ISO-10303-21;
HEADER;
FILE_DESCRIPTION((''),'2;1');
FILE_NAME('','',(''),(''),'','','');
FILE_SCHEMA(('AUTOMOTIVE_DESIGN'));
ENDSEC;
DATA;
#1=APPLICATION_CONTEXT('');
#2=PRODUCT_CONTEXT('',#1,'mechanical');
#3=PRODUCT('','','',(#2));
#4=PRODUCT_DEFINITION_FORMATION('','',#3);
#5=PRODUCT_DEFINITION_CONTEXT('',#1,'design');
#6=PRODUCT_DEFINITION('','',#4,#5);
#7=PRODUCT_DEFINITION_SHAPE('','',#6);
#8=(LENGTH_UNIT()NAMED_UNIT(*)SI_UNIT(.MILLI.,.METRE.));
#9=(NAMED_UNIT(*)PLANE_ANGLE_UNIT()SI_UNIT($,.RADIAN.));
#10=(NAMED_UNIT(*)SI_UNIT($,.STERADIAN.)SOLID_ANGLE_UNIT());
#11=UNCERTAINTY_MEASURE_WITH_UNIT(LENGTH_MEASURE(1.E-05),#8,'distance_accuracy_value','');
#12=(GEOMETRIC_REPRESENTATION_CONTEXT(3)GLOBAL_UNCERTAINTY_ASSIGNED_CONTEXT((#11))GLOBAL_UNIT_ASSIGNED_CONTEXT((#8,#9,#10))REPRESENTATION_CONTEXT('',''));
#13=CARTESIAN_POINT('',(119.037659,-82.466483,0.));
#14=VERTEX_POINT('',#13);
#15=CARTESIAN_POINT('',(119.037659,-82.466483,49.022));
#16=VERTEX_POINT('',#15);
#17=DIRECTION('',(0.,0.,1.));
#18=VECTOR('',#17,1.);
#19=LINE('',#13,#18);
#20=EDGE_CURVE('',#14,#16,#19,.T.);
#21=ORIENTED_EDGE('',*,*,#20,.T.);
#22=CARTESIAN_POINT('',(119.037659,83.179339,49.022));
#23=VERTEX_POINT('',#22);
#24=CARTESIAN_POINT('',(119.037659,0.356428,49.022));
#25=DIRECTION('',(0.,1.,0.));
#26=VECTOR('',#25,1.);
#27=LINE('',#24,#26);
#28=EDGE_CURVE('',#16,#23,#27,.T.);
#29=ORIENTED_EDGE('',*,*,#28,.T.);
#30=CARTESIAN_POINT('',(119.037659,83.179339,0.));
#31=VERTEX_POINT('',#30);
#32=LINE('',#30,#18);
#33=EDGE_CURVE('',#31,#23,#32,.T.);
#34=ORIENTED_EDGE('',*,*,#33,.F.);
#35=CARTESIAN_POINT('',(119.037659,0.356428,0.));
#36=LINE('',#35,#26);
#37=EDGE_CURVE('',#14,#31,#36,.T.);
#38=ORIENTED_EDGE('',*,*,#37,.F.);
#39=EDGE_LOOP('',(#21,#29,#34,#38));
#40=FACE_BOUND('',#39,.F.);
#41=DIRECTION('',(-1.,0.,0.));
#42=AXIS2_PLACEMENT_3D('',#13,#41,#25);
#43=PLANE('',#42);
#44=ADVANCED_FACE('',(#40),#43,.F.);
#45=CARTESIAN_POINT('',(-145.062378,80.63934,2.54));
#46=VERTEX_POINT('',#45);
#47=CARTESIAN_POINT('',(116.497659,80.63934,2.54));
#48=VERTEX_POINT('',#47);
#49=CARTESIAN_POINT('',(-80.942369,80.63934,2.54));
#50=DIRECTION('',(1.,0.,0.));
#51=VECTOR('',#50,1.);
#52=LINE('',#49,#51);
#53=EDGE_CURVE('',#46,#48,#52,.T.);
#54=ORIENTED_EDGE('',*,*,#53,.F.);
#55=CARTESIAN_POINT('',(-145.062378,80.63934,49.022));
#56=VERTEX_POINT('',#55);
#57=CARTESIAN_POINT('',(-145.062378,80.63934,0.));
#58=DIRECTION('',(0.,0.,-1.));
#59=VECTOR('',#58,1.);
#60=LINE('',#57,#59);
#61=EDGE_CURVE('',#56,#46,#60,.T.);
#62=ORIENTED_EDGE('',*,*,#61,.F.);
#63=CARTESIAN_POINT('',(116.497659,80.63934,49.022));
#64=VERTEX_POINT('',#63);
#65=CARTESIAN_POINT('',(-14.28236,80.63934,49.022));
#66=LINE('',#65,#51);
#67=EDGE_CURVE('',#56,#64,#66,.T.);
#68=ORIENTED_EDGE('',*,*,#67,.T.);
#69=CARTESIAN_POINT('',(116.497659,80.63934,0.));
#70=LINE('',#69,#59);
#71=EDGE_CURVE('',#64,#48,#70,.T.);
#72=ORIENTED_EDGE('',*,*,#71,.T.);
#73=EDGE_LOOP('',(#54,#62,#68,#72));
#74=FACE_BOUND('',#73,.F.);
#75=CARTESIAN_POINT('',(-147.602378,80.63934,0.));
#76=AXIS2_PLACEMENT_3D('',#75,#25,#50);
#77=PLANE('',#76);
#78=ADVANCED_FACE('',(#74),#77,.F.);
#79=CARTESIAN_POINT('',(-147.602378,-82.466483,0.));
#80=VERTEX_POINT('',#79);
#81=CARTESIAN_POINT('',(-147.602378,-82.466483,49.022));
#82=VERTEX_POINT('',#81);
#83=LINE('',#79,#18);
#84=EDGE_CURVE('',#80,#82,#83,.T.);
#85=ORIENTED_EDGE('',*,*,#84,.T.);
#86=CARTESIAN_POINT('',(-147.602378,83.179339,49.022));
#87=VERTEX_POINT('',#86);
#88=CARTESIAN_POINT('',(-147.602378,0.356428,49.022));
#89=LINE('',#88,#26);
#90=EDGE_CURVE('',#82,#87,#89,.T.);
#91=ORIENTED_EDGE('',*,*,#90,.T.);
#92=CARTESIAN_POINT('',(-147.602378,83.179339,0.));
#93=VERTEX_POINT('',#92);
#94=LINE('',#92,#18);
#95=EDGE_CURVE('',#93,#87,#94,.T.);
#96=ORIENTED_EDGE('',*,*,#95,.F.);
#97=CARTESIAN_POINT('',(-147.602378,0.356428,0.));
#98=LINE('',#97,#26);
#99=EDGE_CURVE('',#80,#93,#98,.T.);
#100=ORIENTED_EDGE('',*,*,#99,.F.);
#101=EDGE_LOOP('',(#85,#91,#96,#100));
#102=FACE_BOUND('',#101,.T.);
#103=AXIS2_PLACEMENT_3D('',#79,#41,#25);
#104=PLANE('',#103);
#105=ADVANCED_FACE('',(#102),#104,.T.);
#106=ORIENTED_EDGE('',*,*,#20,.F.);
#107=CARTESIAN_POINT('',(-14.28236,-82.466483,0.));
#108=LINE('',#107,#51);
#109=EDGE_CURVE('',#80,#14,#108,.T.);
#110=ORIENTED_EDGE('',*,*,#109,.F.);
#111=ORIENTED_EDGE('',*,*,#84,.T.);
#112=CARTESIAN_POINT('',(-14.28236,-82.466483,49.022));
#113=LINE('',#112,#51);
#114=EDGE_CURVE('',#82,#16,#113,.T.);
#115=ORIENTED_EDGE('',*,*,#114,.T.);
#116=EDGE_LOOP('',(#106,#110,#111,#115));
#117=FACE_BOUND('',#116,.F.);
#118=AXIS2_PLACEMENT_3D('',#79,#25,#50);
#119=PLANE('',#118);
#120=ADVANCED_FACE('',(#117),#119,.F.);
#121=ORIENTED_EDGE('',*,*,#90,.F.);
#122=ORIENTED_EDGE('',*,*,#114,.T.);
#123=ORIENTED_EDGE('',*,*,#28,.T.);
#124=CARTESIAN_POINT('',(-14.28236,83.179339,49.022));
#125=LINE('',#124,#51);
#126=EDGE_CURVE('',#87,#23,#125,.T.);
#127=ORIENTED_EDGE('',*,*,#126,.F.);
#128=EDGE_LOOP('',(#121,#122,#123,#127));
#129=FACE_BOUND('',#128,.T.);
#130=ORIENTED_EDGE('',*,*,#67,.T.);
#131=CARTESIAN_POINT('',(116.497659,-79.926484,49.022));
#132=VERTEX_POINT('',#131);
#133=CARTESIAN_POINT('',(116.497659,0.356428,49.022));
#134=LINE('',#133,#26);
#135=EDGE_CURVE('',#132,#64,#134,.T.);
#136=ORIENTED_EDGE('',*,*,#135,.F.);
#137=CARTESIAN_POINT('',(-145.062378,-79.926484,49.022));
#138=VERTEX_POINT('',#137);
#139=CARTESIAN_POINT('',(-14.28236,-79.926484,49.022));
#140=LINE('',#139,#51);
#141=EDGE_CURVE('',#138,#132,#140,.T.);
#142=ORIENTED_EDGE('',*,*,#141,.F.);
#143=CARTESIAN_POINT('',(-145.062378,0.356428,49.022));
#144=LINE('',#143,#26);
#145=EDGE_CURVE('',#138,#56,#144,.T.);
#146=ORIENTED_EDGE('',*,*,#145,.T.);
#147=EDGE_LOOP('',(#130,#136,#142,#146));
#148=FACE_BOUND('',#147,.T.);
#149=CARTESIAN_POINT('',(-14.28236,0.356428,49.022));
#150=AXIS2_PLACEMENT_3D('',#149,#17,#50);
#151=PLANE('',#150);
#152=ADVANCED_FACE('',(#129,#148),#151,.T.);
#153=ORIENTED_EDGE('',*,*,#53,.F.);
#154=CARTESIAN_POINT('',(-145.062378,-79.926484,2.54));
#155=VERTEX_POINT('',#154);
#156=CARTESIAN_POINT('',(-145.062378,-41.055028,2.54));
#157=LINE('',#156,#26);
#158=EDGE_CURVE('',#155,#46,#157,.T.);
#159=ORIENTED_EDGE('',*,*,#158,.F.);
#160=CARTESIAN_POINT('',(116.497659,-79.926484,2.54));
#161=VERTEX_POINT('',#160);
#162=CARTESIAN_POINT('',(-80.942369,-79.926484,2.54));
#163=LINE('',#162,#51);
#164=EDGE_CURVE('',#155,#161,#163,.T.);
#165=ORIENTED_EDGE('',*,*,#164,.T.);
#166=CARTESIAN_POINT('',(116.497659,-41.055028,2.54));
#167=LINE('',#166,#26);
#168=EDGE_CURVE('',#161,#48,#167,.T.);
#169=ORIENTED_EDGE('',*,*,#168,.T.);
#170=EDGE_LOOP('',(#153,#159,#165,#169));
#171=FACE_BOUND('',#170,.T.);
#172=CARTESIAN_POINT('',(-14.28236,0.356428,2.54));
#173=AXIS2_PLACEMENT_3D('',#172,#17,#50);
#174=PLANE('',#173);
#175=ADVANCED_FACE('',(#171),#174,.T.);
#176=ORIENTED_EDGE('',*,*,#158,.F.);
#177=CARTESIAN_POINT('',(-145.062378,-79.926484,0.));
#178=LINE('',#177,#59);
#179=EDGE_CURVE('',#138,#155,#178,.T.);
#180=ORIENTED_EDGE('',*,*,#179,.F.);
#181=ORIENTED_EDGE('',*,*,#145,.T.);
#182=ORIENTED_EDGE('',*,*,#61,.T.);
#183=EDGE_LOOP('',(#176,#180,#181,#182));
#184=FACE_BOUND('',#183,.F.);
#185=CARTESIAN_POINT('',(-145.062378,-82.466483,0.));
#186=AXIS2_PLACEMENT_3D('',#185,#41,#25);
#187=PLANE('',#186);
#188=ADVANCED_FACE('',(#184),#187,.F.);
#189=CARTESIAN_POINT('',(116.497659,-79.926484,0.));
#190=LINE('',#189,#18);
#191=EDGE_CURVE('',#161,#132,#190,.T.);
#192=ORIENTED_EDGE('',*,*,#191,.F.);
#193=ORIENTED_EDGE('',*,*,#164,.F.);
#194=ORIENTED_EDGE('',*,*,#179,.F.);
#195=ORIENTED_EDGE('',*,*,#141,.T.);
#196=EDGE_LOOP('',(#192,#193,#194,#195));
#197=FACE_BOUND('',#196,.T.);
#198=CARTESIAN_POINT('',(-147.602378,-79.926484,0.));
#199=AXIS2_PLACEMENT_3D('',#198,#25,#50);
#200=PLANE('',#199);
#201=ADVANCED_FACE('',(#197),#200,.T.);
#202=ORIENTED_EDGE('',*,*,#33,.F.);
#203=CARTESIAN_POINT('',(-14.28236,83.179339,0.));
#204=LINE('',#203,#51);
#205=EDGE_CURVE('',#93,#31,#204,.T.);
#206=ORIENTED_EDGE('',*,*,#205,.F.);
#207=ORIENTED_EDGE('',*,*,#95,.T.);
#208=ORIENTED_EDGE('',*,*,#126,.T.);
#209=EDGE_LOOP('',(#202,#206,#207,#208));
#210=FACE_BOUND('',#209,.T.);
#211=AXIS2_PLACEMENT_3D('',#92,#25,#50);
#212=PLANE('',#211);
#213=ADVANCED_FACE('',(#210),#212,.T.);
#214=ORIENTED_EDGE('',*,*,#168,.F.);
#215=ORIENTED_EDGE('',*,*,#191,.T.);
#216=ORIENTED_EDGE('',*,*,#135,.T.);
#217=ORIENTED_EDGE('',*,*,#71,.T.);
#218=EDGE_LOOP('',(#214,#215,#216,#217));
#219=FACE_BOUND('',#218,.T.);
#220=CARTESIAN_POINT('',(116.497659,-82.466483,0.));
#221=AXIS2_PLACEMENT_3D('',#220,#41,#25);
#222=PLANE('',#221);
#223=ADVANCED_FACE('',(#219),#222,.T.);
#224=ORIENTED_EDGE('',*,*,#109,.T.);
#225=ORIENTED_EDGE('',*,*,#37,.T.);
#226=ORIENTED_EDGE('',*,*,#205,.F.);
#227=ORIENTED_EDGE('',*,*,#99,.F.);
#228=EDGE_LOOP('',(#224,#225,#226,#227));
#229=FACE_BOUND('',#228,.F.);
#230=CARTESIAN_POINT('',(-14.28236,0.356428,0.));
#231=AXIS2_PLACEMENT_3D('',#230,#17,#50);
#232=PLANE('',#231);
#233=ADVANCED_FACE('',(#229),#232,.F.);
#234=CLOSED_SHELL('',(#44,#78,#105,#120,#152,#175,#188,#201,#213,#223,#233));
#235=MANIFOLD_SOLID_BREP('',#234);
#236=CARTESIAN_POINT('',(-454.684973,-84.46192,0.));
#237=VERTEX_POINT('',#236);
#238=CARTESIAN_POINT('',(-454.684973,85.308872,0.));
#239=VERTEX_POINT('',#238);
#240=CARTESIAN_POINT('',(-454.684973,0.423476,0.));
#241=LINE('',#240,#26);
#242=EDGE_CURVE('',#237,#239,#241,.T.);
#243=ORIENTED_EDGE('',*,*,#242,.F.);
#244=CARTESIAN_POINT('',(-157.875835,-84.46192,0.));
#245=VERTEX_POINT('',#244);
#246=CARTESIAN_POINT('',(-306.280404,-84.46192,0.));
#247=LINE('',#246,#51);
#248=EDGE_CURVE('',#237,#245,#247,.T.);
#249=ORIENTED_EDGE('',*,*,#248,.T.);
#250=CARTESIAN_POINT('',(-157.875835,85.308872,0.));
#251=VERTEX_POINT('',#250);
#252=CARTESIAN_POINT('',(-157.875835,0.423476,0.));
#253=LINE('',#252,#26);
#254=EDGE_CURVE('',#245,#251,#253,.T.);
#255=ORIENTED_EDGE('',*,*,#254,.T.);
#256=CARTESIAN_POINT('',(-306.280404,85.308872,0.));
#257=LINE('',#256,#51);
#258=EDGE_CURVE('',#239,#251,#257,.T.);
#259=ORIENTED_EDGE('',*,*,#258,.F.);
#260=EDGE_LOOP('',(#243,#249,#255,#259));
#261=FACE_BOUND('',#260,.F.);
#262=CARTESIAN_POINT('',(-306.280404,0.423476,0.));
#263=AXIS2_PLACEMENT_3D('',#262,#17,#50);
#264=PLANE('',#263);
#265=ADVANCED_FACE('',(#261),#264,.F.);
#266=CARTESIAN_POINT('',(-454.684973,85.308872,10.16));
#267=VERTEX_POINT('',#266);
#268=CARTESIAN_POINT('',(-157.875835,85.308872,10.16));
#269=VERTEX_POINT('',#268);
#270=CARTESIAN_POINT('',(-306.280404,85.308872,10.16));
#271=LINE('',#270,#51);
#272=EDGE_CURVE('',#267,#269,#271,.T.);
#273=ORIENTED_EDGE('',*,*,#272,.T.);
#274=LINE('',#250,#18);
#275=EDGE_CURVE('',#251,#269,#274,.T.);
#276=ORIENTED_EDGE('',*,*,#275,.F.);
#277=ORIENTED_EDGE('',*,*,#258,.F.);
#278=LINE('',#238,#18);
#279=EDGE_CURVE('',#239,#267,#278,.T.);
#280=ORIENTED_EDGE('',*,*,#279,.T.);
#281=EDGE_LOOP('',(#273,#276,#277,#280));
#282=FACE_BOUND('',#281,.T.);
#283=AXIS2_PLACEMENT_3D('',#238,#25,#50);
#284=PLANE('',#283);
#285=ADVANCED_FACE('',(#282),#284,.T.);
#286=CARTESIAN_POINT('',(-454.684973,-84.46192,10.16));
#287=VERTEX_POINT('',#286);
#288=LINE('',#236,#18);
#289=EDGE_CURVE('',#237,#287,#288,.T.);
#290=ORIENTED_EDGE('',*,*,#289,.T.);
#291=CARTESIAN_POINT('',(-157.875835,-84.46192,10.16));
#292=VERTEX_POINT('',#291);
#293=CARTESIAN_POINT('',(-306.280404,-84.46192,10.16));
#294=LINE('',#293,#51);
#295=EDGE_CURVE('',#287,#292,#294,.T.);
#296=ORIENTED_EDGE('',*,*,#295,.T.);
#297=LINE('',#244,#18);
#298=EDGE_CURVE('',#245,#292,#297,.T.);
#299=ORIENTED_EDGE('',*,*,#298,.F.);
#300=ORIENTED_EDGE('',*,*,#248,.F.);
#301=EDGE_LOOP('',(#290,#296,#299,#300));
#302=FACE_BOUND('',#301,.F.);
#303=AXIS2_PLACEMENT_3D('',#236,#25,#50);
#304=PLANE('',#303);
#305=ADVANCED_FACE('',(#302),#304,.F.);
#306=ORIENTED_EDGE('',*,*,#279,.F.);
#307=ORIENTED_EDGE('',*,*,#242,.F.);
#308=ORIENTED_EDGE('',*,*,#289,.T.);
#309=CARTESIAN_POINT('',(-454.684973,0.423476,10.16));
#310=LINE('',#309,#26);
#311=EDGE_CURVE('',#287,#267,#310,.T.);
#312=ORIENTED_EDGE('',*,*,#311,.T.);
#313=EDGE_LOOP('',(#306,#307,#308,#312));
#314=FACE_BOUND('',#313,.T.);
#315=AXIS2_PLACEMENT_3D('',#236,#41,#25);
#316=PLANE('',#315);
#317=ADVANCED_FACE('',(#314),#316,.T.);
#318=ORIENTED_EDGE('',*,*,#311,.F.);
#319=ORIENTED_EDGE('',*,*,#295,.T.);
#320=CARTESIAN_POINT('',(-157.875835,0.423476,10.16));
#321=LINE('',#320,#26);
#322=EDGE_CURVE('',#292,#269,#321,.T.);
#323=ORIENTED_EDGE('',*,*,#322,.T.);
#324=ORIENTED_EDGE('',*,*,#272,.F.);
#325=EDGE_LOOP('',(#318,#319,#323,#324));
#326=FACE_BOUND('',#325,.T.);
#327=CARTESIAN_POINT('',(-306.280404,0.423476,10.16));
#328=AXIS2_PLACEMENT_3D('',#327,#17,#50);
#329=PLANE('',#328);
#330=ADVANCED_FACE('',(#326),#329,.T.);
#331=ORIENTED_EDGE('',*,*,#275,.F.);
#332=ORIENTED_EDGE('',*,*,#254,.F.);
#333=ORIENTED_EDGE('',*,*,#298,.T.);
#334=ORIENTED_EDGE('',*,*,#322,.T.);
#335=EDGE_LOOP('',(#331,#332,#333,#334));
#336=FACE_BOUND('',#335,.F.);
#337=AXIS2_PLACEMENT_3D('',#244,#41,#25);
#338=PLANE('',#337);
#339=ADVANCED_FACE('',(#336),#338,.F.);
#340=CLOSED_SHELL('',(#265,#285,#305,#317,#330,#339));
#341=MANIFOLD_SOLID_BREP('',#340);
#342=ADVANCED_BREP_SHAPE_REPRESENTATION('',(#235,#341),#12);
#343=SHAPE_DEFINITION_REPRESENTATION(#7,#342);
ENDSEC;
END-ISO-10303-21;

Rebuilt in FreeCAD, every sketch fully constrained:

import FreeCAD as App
import Part
import Sketcher
from FreeCAD import Vector
Q = App.Units.Quantity


def faces_at(feature, points):
    """Names of the faces that lie closest to the given points."""
    faces = feature.Shape.Faces
    near = lambda p: min(range(len(faces)), key=lambda i: faces[i].distToShape(Part.Vertex(*p))[0])
    return sorted({f"Face{near(p) + 1}" for p in points})

doc = App.newDocument("Part")
body = doc.addObject("PartDesign::Body", "Body")

# Sketch on XY plane
sketch1 = doc.addObject("Sketcher::SketchObject", "Sketch")
body.addObject(sketch1)
sketch1.AttachmentSupport = (doc.XY_Plane, [""])
sketch1.MapMode = "FlatFace"
sketch1.addGeometry(Part.LineSegment(Vector(-148, 83, 0), Vector(-148, -82, 0)), False)
sketch1.addGeometry(Part.LineSegment(Vector(-148, -82, 0), Vector(119, -82, 0)), False)
sketch1.addGeometry(Part.LineSegment(Vector(119, -82, 0), Vector(119, 83, 0)), False)
sketch1.addGeometry(Part.LineSegment(Vector(119, 83, 0), Vector(-148, 83, 0)), False)
sketch1.addConstraint(Sketcher.Constraint("Coincident", 0, 2, 1, 1))
sketch1.addConstraint(Sketcher.Constraint("Coincident", 1, 2, 2, 1))
sketch1.addConstraint(Sketcher.Constraint("Coincident", 2, 2, 3, 1))
sketch1.addConstraint(Sketcher.Constraint("Coincident", 3, 2, 0, 1))
sketch1.addConstraint(Sketcher.Constraint("Vertical", 0))
sketch1.addConstraint(Sketcher.Constraint("Horizontal", 1))
sketch1.addConstraint(Sketcher.Constraint("Vertical", 2))
sketch1.addConstraint(Sketcher.Constraint("Horizontal", 3))
sketch1.addConstraint(Sketcher.Constraint("DistanceX", 1, 1, 1, 2, Q("266.640037 mm")))
sketch1.addConstraint(Sketcher.Constraint("DistanceY", 0, 2, 0, 1, Q("165.645823 mm")))
sketch1.addConstraint(Sketcher.Constraint("DistanceX", 0, 2, -1, 1, Q("147.602378 mm")))
sketch1.addConstraint(Sketcher.Constraint("DistanceY", -1, 1, 2, 2, Q("83.179339 mm")))
pad1 = doc.addObject("PartDesign::Pad", "Pad")
body.addObject(pad1)
pad1.Profile = sketch1
pad1.Length = Q("1.93 in")
doc.recompute()

thickness = doc.addObject("PartDesign::Thickness", "Thickness")
body.addObject(thickness)
thickness.Base = (pad1, faces_at(pad1, [(-14.282, 0.356, 49.022)]))
thickness.Value = Q("0.1 in")
thickness.Reversed = True
thickness.Join = "Arc"
body2 = doc.addObject("PartDesign::Body", "Body001")

# Sketch on XY plane
sketch2 = doc.addObject("Sketcher::SketchObject", "Sketch001")
body2.addObject(sketch2)
sketch2.AttachmentSupport = (doc.getObject("XY_Plane001"), [""])
sketch2.MapMode = "FlatFace"
sketch2.addGeometry(Part.LineSegment(Vector(-455, 85, 0), Vector(-455, -84, 0)), False)
sketch2.addGeometry(Part.LineSegment(Vector(-455, -84, 0), Vector(-158, -84, 0)), False)
sketch2.addGeometry(Part.LineSegment(Vector(-158, -84, 0), Vector(-158, 85, 0)), False)
sketch2.addGeometry(Part.LineSegment(Vector(-158, 85, 0), Vector(-455, 85, 0)), False)
sketch2.addConstraint(Sketcher.Constraint("Coincident", 0, 2, 1, 1))
sketch2.addConstraint(Sketcher.Constraint("Coincident", 1, 2, 2, 1))
sketch2.addConstraint(Sketcher.Constraint("Coincident", 2, 2, 3, 1))
sketch2.addConstraint(Sketcher.Constraint("Coincident", 3, 2, 0, 1))
sketch2.addConstraint(Sketcher.Constraint("Vertical", 0))
sketch2.addConstraint(Sketcher.Constraint("Horizontal", 1))
sketch2.addConstraint(Sketcher.Constraint("Vertical", 2))
sketch2.addConstraint(Sketcher.Constraint("Horizontal", 3))
sketch2.addConstraint(Sketcher.Constraint("DistanceY", 0, 2, 0, 1, Q("169.770792 mm")))
sketch2.addConstraint(Sketcher.Constraint("DistanceX", 1, 1, 1, 2, Q("296.809137 mm")))
sketch2.addConstraint(Sketcher.Constraint("DistanceY", 0, 2, -1, 1, Q("84.46192 mm")))
sketch2.addConstraint(Sketcher.Constraint("DistanceX", 0, 2, -1, 1, Q("454.684973 mm")))
pad2 = doc.addObject("PartDesign::Pad", "Pad001")
body2.addObject(pad2)
pad2.Profile = sketch2
pad2.Length = Q("0.4 in")

doc.recompute()
